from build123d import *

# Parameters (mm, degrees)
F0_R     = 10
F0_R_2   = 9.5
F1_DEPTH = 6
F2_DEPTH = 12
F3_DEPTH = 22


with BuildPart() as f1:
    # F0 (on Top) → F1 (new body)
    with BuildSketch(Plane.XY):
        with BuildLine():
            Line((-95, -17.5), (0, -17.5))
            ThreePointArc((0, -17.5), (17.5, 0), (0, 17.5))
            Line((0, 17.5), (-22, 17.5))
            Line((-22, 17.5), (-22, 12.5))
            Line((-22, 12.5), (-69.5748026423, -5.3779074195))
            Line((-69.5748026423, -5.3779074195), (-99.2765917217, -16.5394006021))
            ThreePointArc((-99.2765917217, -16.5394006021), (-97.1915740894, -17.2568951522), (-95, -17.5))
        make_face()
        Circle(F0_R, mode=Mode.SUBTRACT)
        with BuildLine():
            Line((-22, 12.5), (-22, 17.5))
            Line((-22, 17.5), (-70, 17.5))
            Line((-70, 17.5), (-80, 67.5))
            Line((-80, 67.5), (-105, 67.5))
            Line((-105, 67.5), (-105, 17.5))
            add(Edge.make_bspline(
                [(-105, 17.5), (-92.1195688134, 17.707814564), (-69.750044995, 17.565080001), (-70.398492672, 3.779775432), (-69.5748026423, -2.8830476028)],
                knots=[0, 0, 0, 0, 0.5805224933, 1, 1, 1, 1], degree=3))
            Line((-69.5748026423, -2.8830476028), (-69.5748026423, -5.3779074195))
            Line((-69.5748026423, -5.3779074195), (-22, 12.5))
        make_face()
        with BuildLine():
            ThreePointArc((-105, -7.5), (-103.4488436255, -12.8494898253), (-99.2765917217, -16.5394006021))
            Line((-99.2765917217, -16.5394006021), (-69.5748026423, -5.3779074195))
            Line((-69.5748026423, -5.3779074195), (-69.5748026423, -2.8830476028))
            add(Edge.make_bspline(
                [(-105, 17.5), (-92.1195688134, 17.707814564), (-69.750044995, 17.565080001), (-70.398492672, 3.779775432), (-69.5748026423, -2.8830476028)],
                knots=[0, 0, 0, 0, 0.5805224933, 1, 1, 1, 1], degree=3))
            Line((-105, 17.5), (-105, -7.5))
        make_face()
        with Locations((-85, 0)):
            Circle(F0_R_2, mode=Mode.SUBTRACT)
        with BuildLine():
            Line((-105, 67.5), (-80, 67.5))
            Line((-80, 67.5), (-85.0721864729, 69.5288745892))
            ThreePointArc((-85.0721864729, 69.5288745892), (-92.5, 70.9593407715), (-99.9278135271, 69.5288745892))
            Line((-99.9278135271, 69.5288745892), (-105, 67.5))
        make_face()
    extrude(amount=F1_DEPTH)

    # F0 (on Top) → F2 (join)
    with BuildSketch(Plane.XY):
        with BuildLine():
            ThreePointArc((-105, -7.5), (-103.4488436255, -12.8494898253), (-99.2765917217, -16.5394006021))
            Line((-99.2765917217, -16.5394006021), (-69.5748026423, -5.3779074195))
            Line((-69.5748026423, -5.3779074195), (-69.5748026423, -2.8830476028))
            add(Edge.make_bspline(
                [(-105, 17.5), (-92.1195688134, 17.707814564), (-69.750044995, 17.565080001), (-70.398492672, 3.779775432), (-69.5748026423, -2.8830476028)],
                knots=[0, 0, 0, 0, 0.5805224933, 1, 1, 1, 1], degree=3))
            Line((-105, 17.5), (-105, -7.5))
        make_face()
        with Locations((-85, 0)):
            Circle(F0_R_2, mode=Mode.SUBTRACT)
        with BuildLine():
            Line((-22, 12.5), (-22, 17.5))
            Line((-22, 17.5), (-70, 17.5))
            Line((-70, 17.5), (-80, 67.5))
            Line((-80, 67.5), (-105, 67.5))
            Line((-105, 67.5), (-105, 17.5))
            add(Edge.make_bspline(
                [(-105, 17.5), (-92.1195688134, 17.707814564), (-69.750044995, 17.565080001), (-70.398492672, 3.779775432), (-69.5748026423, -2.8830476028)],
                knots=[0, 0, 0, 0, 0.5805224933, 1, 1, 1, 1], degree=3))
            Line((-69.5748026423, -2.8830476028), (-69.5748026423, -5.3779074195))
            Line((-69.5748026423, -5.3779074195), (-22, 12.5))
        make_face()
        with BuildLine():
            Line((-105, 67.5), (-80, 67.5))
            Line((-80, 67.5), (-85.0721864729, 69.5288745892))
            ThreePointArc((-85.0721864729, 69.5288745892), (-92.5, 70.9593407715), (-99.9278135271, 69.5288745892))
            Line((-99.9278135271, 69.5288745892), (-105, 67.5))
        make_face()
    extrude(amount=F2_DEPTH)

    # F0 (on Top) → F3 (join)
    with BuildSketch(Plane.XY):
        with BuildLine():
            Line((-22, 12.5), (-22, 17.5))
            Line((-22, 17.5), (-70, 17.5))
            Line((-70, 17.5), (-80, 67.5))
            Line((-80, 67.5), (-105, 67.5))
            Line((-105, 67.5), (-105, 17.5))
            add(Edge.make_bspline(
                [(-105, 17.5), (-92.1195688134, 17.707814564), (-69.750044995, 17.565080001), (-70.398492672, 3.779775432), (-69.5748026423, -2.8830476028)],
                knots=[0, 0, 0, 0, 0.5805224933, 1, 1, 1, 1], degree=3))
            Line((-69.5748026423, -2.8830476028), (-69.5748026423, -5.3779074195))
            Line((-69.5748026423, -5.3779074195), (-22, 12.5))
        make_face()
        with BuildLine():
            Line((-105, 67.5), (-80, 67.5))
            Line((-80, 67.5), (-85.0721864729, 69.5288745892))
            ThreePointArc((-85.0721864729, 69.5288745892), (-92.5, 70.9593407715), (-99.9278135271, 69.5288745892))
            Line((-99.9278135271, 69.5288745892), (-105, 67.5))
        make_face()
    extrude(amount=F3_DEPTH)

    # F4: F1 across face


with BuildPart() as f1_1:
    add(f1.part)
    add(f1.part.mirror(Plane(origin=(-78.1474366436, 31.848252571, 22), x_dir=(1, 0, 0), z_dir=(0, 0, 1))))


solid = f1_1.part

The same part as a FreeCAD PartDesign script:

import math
import FreeCAD as App
import Part
import Sketcher

V = App.Vector
Q = App.Units.Quantity

doc = App.newDocument("Part")
body = doc.addObject("PartDesign::Body", "Body")

# Sketch on XY plane
sketch1 = body.newObject("Sketcher::SketchObject", "Sketch")
sketch1.AttachmentSupport = (doc.getObject("XY_Plane"), [""])
sketch1.MapMode = "FlatFace"
sketch1.addGeometry([
    Part.LineSegment(V(-95, -17.5, 0), V(0, -17.5, 0)),  # 0
    Part.ArcOfCircle(Part.Circle(V(0, 0, 0), V(0, 0, 1), 17.5), math.radians(-90), math.radians(90)),  # 1
    Part.LineSegment(V(0, 17.5, 0), V(-70, 17.5, 0)),  # 2
    Part.LineSegment(V(-70, 17.5, 0), V(-80, 67.5, 0)),  # 3
    Part.LineSegment(V(-80, 67.5, 0), V(-85.1, 69.5, 0)),  # 4
    Part.ArcOfCircle(Part.Circle(V(-92.5, 51, 0), V(0, 0, 1), 20), math.radians(68), math.radians(112)),  # 5
    Part.LineSegment(V(-99.9, 69.5, 0), V(-105, 67.5, 0)),  # 6
    Part.LineSegment(V(-105, 67.5, 0), V(-105, -7.5, 0)),  # 7
    Part.ArcOfCircle(Part.Circle(V(-95, -7.5, 0), V(0, 0, 1), 10), math.radians(180), math.radians(245)),  # 8
    Part.ArcOfCircle(Part.Circle(V(-95, -7.5, 0), V(0, 0, 1), 10), math.radians(-115), math.radians(-90)),  # 9
    Part.Circle(V(-85, 0, 0), V(0, 0, 1), 9.5),  # 10
    Part.Circle(V(0, 0, 0), V(0, 0, 1), 10),  # 11
], False)
sketch1.addConstraint([
    Sketcher.Constraint("Tangent", 0, 2, 1, 1),
    Sketcher.Constraint("Tangent", 1, 2, 2, 1),
    Sketcher.Constraint("Coincident", 2, 2, 3, 1),
    Sketcher.Constraint("Coincident", 3, 2, 4, 1),
    Sketcher.Constraint("Tangent", 4, 2, 5, 1),
    Sketcher.Constraint("Tangent", 5, 2, 6, 1),
    Sketcher.Constraint("Coincident", 6, 2, 7, 1),
    Sketcher.Constraint("Tangent", 7, 2, 8, 1),
    Sketcher.Constraint("Tangent", 8, 2, 9, 1),
    Sketcher.Constraint("Tangent", 9, 2, 0, 1),
    Sketcher.Constraint("Horizontal", 0),
    Sketcher.Constraint("Horizontal", 2),
    Sketcher.Constraint("Vertical", 7),
    Sketcher.Constraint("Coincident", 1, 3, -1, 1),
    Sketcher.Constraint("Coincident", 11, 3, -1, 1),
    Sketcher.Constraint("Equal", 8, 9),
    Sketcher.Constraint("Equal", 9, 11),
    Sketcher.Constraint("PointOnObject", 10, 3, -1),
    Sketcher.Constraint("Horizontal", 4, 2, 5, 2),
    Sketcher.Constraint("Horizontal", 3, 2, 6, 2),
    Sketcher.Constraint("Diameter", 10, Q("19 mm")),
    Sketcher.Constraint("Diameter", 11, Q("20 mm")),
    Sketcher.Constraint("Radius", 5, Q("20 mm")),
    Sketcher.Constraint("Radius", 1, Q("17.5 mm")),
    Sketcher.Constraint("DistanceX", 0, 1, 0, 2, Q("95 mm")),
    Sketcher.Constraint("DistanceX", 2, 2, 2, 1, Q("70 mm")),
    Sketcher.Constraint("DistanceY", 7, 2, 7, 1, Q("75 mm")),
    Sketcher.Constraint("DistanceX", 10, 3, -1, 1, Q("85 mm")),
    Sketcher.Constraint("DistanceX", 3, 2, -1, 1, Q("80 mm")),
    Sketcher.Constraint("DistanceY", 8, 2, -1, 1, Q("16.539401 mm")),
    Sketcher.Constraint("DistanceY", -1, 1, 5, 3, Q("50.959341 mm")),
])
pad1 = body.newObject("PartDesign::Pad", "Pad")
pad1.Profile = sketch1
pad1.Length = 6

# Sketch on XY plane
sketch2 = body.newObject("Sketcher::SketchObject", "Sketch001")
sketch2.AttachmentSupport = (doc.getObject("XY_Plane"), [""])
sketch2.MapMode = "FlatFace"
sketch2.addGeometry([
    Part.ArcOfCircle(Part.Circle(V(-95, -8, 0), V(0, 0, 1), 10), math.radians(180), math.radians(245)),  # 0
    Part.LineSegment(V(-99, -17, 0), V(-22, 12, 0)),  # 1
    Part.LineSegment(V(-22, 12, 0), V(-22, 18, 0)),  # 2
    Part.LineSegment(V(-22, 18, 0), V(-70, 18, 0)),  # 3
    Part.LineSegment(V(-70, 18, 0), V(-80, 68, 0)),  # 4
    Part.LineSegment(V(-80, 68, 0), V(-85, 70, 0)),  # 5
    Part.ArcOfCircle(Part.Circle(V(-92, 51, 0), V(0, 0, 1), 20), math.radians(68), math.radians(112)),  # 6
    Part.LineSegment(V(-100, 70, 0), V(-105, 68, 0)),  # 7
    Part.LineSegment(V(-105, 68, 0), V(-105, -8, 0)),  # 8
    Part.Circle(V(-85, 0, 0), V(0, 0, 1), 10),  # 9
], False)
sketch2.addConstraint([
    Sketcher.Constraint("Coincident", 0, 2, 1, 1),
    Sketcher.Constraint("Coincident", 1, 2, 2, 1),
    Sketcher.Constraint("Coincident", 2, 2, 3, 1),
    Sketcher.Constraint("Coincident", 3, 2, 4, 1),
    Sketcher.Constraint("Coincident", 4, 2, 5, 1),
    Sketcher.Constraint("Tangent", 5, 2, 6, 1),
    Sketcher.Constraint("Tangent", 6, 2, 7, 1),
    Sketcher.Constraint("Coincident", 7, 2, 8, 1),
    Sketcher.Constraint("Tangent", 8, 2, 0, 1),
    Sketcher.Constraint("Vertical", 2),
    Sketcher.Constraint("Horizontal", 3),
    Sketcher.Constraint("Vertical", 8),
    Sketcher.Constraint("PointOnObject", 9, 3, -1),
    Sketcher.Constraint("Horizontal", 5, 2, 6, 2),
    Sketcher.Constraint("Horizontal", 4, 2, 7, 2),
    Sketcher.Constraint("Diameter", 9, Q("19 mm")),
    Sketcher.Constraint("Radius", 0, Q("10 mm")),
    Sketcher.Constraint("Radius", 6, Q("20 mm")),
    Sketcher.Constraint("DistanceX", 3, 2, 3, 1, Q("48 mm")),
    Sketcher.Constraint("DistanceY", 2, 1, 2, 2, Q("5 mm")),
    Sketcher.Constraint("DistanceY", 8, 2, 8, 1, Q("75 mm")),
    Sketcher.Constraint("DistanceX", 0, 3, -1, 1, Q("95 mm")),
    Sketcher.Constraint("DistanceX", 9, 3, -1, 1, Q("85 mm")),
    Sketcher.Constraint("DistanceX", 1, 2, -1, 1, Q("22 mm")),
    Sketcher.Constraint("DistanceX", 4, 2, -1, 1, Q("80 mm")),
    Sketcher.Constraint("DistanceY", 0, 3, 1, 2, Q("20 mm")),
    Sketcher.Constraint("DistanceY", 0, 3, -1, 1, Q("7.5 mm")),
    Sketcher.Constraint("DistanceY", 0, 2, -1, 1, Q("16.539401 mm")),
    Sketcher.Constraint("DistanceY", -1, 1, 6, 3, Q("50.959341 mm")),
])
pad2 = body.newObject("PartDesign::Pad", "Pad001")
pad2.Profile = sketch2
pad2.Length = 12

# Sketch on XY plane
sketch3 = body.newObject("Sketcher::SketchObject", "Sketch002")
sketch3.AttachmentSupport = (doc.getObject("XY_Plane"), [""])
sketch3.MapMode = "FlatFace"
sketch3.addGeometry([
    Part.LineSegment(V(-22, 12.5, 0), V(-22, 17.5, 0)),  # 0
    Part.LineSegment(V(-22, 17.5, 0), V(-70, 17.5, 0)),  # 1
    Part.LineSegment(V(-70, 17.5, 0), V(-80, 67.5, 0)),  # 2
    Part.LineSegment(V(-80, 67.5, 0), V(-85.072186, 69.528875, 0)),  # 3
    Part.ArcOfCircle(Part.Circle(V(-92.5, 50.959341, 0), V(0, 0, 1), 20), math.radians(68.198591), math.radians(111.801409)),  # 4
    Part.LineSegment(V(-99.927814, 69.528875, 0), V(-105, 67.5, 0)),  # 5
    Part.LineSegment(V(-105, 67.5, 0), V(-105, 17.5, 0)),  # 6
    Part.BSplineCurve([V(-105, 17.5, 0), V(-92.119569, 17.707815, 0), V(-69.750045, 17.56508, 0), V(-70.398493, 3.779775, 0), V(-69.574803, -2.883048, 0)], [4, 1, 4], [0, 0.580522493, 1], False, 3, [1, 1, 1, 1, 1], False),  # 7
    Part.LineSegment(V(-69.574803, -2.883048, 0), V(-69.574803, -5.377907, 0)),  # 8
    Part.LineSegment(V(-69.574803, -5.377907, 0), V(-22, 12.5, 0)),  # 9
], False)
sketch3.addConstraint([
    Sketcher.Constraint("Block", 7),
    Sketcher.Constraint("Coincident", 0, 2, 1, 1),
    Sketcher.Constraint("Coincident", 1, 2, 2, 1),
    Sketcher.Constraint("Coincident", 2, 2, 3, 1),
    Sketcher.Constraint("Coincident", 3, 2, 4, 1),
    Sketcher.Constraint("Coincident", 4, 2, 5, 1),
    Sketcher.Constraint("Coincident", 5, 2, 6, 1),
    Sketcher.Constraint("Coincident", 6, 2, 7, 1),
    Sketcher.Constraint("Coincident", 7, 2, 8, 1),
    Sketcher.Constraint("Coincident", 8, 2, 9, 1),
    Sketcher.Constraint("Coincident", 9, 2, 0, 1),
    Sketcher.Constraint("Vertical", 0),
    Sketcher.Constraint("Horizontal", 1),
    Sketcher.Constraint("Vertical", 6),
    Sketcher.Constraint("Vertical", 8),
    Sketcher.Constraint("Radius", 4, Q("20 mm")),
    Sketcher.Constraint("DistanceX", 1, 2, 1, 1, Q("48 mm")),
    Sketcher.Constraint("DistanceY", 0, 1, 0, 2, Q("5 mm")),
    Sketcher.Constraint("DistanceY", 6, 2, 6, 1, Q("50 mm")),
    Sketcher.Constraint("DistanceX", 0, 2, -1, 1, Q("22 mm")),
    Sketcher.Constraint("DistanceX", 2, 2, -1, 1, Q("80 mm")),
    Sketcher.Constraint("DistanceY", 1, 2, 2, 2, Q("50 mm")),
    Sketcher.Constraint("DistanceY", 1, 2, 5, 2, Q("50 mm")),
    Sketcher.Constraint("DistanceX", 4, 3, -1, 1, Q("92.5 mm")),
    Sketcher.Constraint("DistanceY", 8, 2, 8, 1, Q("2.49486 mm")),
    Sketcher.Constraint("DistanceY", -1, 1, 4, 3, Q("50.959341 mm")),
    Sketcher.Constraint("Distance", 3, Q("5.462912 mm")),
    Sketcher.Constraint("Distance", 5, Q("5.462912 mm")),
])
pad3 = body.newObject("PartDesign::Pad", "Pad002")
pad3.Profile = sketch3
pad3.Length = 22
body2 = doc.addObject("PartDesign::Body", "Body001")
doc.recompute()

body2.BaseFeature = body
doc.recompute()

mirroring = doc.addObject("Part::Mirroring", "Mirroring")
mirroring.Source = body
mirroring.Base = V(-78.147437, 31.848253, 22)
mirroring.Normal = V(0, 0, 1)
body3 = doc.addObject("PartDesign::Body", "Body002")
body3.BaseFeature = mirroring
boolean = body2.newObject("PartDesign::Boolean", "Boolean")
boolean.Type = "Fuse"
boolean.addObjects([body3])
doc.recompute()
mirroring.Visibility = False

doc.recompute()
